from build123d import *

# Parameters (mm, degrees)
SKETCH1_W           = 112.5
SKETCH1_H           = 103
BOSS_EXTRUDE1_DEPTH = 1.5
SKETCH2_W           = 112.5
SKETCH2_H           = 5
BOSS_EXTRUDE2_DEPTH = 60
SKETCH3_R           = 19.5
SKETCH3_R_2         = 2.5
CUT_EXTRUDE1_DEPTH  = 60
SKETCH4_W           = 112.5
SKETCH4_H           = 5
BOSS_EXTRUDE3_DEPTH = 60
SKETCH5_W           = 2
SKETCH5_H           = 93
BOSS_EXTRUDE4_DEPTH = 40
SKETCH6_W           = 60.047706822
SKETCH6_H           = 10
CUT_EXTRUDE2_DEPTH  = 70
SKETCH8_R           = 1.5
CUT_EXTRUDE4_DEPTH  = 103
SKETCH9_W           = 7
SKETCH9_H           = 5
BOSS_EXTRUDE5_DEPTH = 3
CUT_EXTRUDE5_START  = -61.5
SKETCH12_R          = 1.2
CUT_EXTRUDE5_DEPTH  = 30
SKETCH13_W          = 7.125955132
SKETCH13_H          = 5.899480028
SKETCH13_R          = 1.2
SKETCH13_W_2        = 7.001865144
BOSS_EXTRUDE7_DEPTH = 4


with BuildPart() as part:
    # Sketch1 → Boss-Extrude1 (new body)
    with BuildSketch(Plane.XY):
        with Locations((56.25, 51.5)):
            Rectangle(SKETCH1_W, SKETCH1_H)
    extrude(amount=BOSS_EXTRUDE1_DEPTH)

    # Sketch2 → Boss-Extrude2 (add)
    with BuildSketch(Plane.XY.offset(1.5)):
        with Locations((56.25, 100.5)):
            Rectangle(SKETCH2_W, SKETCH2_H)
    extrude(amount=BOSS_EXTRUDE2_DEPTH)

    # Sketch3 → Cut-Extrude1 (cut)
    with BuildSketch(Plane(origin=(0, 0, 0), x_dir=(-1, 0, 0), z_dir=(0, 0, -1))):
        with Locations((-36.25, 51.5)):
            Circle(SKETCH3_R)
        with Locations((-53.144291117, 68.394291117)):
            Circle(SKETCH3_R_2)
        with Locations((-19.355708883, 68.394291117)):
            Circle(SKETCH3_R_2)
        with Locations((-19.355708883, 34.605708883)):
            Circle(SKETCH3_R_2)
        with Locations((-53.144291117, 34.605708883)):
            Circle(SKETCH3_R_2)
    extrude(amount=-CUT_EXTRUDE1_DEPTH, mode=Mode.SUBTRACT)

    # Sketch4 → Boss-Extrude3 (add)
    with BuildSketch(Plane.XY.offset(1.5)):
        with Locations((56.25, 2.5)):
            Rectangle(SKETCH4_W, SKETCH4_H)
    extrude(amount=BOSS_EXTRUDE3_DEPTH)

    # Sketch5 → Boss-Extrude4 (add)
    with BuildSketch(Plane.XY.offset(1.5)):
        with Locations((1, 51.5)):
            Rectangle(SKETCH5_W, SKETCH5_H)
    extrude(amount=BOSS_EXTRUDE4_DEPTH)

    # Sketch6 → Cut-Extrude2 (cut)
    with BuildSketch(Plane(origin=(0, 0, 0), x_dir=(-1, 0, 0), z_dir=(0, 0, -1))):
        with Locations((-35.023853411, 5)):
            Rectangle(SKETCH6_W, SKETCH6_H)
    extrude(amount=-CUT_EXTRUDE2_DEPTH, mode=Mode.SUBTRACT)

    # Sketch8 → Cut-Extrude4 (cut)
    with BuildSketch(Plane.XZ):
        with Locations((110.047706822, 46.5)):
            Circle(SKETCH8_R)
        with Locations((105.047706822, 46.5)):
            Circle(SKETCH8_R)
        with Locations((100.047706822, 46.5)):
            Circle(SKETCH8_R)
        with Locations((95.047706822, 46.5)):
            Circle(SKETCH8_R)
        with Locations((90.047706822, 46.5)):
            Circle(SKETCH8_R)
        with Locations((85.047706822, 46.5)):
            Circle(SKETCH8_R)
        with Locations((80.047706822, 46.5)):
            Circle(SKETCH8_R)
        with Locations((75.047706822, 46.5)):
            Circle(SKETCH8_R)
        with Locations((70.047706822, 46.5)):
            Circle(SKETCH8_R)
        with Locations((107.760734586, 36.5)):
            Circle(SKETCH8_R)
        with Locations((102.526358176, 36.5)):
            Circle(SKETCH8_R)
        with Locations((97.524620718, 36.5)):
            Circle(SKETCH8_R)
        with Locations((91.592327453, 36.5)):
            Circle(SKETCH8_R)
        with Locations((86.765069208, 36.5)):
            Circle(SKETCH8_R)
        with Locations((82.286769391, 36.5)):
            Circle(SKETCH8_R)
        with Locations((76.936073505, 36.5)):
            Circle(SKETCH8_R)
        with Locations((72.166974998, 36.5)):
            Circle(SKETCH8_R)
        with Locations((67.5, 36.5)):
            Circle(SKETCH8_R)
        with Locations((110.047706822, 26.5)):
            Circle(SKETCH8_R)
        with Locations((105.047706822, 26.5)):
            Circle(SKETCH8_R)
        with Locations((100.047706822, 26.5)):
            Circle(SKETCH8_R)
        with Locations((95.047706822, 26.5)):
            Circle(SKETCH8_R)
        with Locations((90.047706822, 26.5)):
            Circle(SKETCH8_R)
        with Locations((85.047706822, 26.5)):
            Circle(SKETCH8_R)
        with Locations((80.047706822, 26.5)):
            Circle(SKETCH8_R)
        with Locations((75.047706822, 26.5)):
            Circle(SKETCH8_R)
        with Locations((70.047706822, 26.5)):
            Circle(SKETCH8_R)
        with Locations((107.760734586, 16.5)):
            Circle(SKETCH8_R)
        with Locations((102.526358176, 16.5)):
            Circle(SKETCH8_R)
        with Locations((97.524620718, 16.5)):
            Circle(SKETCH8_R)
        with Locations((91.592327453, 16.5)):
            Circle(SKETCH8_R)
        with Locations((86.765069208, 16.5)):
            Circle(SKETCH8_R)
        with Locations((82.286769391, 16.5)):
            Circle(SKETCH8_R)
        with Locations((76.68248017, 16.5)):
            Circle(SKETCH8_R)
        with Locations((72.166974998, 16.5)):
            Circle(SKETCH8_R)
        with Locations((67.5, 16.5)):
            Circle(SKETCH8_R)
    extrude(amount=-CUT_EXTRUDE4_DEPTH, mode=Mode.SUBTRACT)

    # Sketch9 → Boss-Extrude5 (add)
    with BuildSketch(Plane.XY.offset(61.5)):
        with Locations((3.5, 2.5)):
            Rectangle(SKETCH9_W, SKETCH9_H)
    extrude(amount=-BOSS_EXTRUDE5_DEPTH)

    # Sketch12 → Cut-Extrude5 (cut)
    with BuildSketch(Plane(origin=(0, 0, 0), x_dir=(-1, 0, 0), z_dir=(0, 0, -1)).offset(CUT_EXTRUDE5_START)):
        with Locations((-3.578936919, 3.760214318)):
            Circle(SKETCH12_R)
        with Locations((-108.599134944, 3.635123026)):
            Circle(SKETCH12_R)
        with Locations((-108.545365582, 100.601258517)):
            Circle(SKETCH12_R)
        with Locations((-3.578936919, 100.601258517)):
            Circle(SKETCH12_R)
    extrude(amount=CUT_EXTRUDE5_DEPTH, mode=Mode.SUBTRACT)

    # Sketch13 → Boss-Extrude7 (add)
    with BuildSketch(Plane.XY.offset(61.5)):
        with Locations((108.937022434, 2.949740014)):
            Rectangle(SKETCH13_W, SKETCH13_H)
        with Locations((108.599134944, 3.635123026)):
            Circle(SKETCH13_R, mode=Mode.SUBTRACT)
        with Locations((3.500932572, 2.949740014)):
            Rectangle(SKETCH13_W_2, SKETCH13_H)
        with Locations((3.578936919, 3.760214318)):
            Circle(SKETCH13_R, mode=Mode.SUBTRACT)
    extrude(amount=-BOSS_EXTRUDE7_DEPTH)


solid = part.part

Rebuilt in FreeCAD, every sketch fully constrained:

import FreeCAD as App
import Part
import Sketcher
from FreeCAD import Vector


def add_polygon(sketch, points):
    """Adds a closed chain of lines whose ends are joined by coincident constraints."""
    first, n = sketch.GeometryCount, len(points)
    for a, b in zip(points, points[1:] + points[:1]):
        sketch.addGeometry(Part.LineSegment(App.Vector(*a, 0), App.Vector(*b, 0)), False)
    for i in range(n):
        sketch.addConstraint(Sketcher.Constraint("Coincident", first + i, 2, first + (i + 1) % n, 1))

doc = App.newDocument("Part")
params = doc.addObject("Spreadsheet::Sheet", "Params")
for row, (alias, value) in enumerate([
    ("sketch1_height", "103 mm"),
    ("sketch1_width", "112.5 mm"),
    ("pad1_length", "1.5 mm"),
    ("sketch2_height", "5 mm"),
    ("sketch2_width", "112.5 mm"),
    ("pad2_length", "60 mm"),
    ("sketch3_diameter", "39 mm"),
    ("sketch3_diameter2", "5 mm"),
    ("pocket1_length", "60 mm"),
    ("sketch4_height", "5 mm"),
    ("sketch4_width", "112.5 mm"),
    ("pad3_length", "60 mm"),
    ("sketch5_width", "2 mm"),
    ("sketch5_height", "93 mm"),
    ("pad4_length", "40 mm"),
    ("sketch6_height", "10 mm"),
    ("pocket2_length", "70 mm"),
    ("sketch7_diameter", "3 mm"),
    ("pocket3_length", "103 mm"),
    ("sketch8_width", "7 mm"),
    ("sketch8_height", "5 mm"),
    ("pad5_length", "3 mm"),
    ("sketch9_diameter", "2.4 mm"),
    ("pocket4_length", "30 mm"),
    ("sketch10_diameter", "2.4 mm"),
    ("pad6_length", "4 mm"),
], start=1):
    params.set(f"A{row}", alias)
    params.set(f"B{row}", "=" + value)
    params.setAlias(f"B{row}", alias)

body = doc.addObject("PartDesign::Body", "Body")

sketch1 = body.newObject("Sketcher::SketchObject", "Sketch")
sketch1.AttachmentSupport = (doc.getObject("XY_Plane"), [""])
sketch1.MapMode = "FlatFace"
add_polygon(sketch1, [(0, 103), (0, 0), (112, 0), (112, 103)])
sketch1.addConstraint(Sketcher.Constraint("Vertical", 0))
sketch1.addConstraint(Sketcher.Constraint("Horizontal", 1))
sketch1.addConstraint(Sketcher.Constraint("Vertical", 2))
sketch1.addConstraint(Sketcher.Constraint("Horizontal", 3))
sketch1.addConstraint(Sketcher.Constraint("Coincident", 0, 2, -1, 1))
sketch1.addConstraint(Sketcher.Constraint("DistanceY", 0, 2, 0, 1, 103.0))
sketch1.addConstraint(Sketcher.Constraint("DistanceX", 1, 1, 1, 2, 112.5))
sketch1.setExpression("Constraints[9]", "Params.sketch1_height")
sketch1.setExpression("Constraints[10]", "Params.sketch1_width")
pad1 = body.newObject("PartDesign::Pad", "Pad")
pad1.Profile = sketch1
pad1.setExpression("Length", "Params.pad1_length")

sketch2 = body.newObject("Sketcher::SketchObject", "Sketch001")
sketch2.AttachmentSupport = (doc.getObject("XY_Plane"), [""])
sketch2.MapMode = "FlatFace"
sketch2.AttachmentOffset = App.Placement(Vector(0, 0, 1.5), App.Rotation())
add_polygon(sketch2, [(0, 103), (0, 98), (112, 98), (112, 103)])
sketch2.addConstraint(Sketcher.Constraint("Vertical", 0))
sketch2.addConstraint(Sketcher.Constraint("Horizontal", 1))
sketch2.addConstraint(Sketcher.Constraint("Vertical", 2))
sketch2.addConstraint(Sketcher.Constraint("Horizontal", 3))
sketch2.addConstraint(Sketcher.Constraint("PointOnObject", 0, 2, -2))
sketch2.addConstraint(Sketcher.Constraint("DistanceY", 0, 2, 0, 1, 5.0))
sketch2.addConstraint(Sketcher.Constraint("DistanceX", 1, 1, 1, 2, 112.5))
sketch2.addConstraint(Sketcher.Constraint("DistanceY", -1, 1, 0, 2, 98.0))
sketch2.setExpression("Constraints[9]", "Params.sketch2_height")
sketch2.setExpression("Constraints[10]", "Params.sketch2_width")
pad2 = body.newObject("PartDesign::Pad", "Pad001")
pad2.Profile = sketch2
pad2.setExpression("Length", "Params.pad2_length")

sketch3 = body.newObject("Sketcher::SketchObject", "Sketch002")
sketch3.AttachmentSupport = (doc.getObject("XY_Plane"), [""])
sketch3.MapMode = "FlatFace"
sketch3.addGeometry(Part.Circle(Vector(36.2, 51.5, 0), Vector(0, 0, 1), 19.5), False)
sketch3.addGeometry(Part.Circle(Vector(53.1, 68.4, 0), Vector(0, 0, 1), 2.5), False)
sketch3.addGeometry(Part.Circle(Vector(19.4, 68.4, 0), Vector(0, 0, 1), 2.5), False)
sketch3.addGeometry(Part.Circle(Vector(19.4, 34.6, 0), Vector(0, 0, 1), 2.5), False)
sketch3.addGeometry(Part.Circle(Vector(53.1, 34.6, 0), Vector(0, 0, 1), 2.5), False)
sketch3.addConstraint(Sketcher.Constraint("Equal", 1, 2))
sketch3.addConstraint(Sketcher.Constraint("Equal", 2, 3))
sketch3.addConstraint(Sketcher.Constraint("Equal", 3, 4))
sketch3.addConstraint(Sketcher.Constraint("Horizontal", 1, 3, 2, 3))
sketch3.addConstraint(Sketcher.Constraint("Horizontal", 3, 3, 4, 3))
sketch3.addConstraint(Sketcher.Constraint("Vertical", 2, 3, 3, 3))
sketch3.addConstraint(Sketcher.Constraint("Vertical", 1, 3, 4, 3))
sketch3.addConstraint(Sketcher.Constraint("Diameter", 0, 39.0))
sketch3.addConstraint(Sketcher.Constraint("Diameter", 1, 5.0))
sketch3.addConstraint(Sketcher.Constraint("DistanceY", -1, 1, 0, 3, 51.5))
sketch3.addConstraint(Sketcher.Constraint("DistanceX", -1, 1, 0, 3, 36.25))
sketch3.addConstraint(Sketcher.Constraint("DistanceX", -1, 1, 1, 3, 53.144291))
sketch3.addConstraint(Sketcher.Constraint("DistanceY", -1, 1, 1, 3, 68.394291))
sketch3.addConstraint(Sketcher.Constraint("DistanceX", -1, 1, 2, 3, 19.355709))
sketch3.addConstraint(Sketcher.Constraint("DistanceY", -1, 1, 3, 3, 34.605709))
sketch3.setExpression("Constraints[7]", "Params.sketch3_diameter")
sketch3.setExpression("Constraints[8]", "Params.sketch3_diameter2")
pocket1 = body.newObject("PartDesign::Pocket", "Pocket")
pocket1.Profile = sketch3
pocket1.setExpression("Length", "Params.pocket1_length")
pocket1.Reversed = True

sketch4 = body.newObject("Sketcher::SketchObject", "Sketch003")
sketch4.AttachmentSupport = (doc.getObject("XY_Plane"), [""])
sketch4.MapMode = "FlatFace"
sketch4.AttachmentOffset = App.Placement(Vector(0, 0, 1.5), App.Rotation())
add_polygon(sketch4, [(0, 5), (0, 0), (112, 0), (112, 5)])
sketch4.addConstraint(Sketcher.Constraint("Vertical", 0))
sketch4.addConstraint(Sketcher.Constraint("Horizontal", 1))
sketch4.addConstraint(Sketcher.Constraint("Vertical", 2))
sketch4.addConstraint(Sketcher.Constraint("Horizontal", 3))
sketch4.addConstraint(Sketcher.Constraint("Coincident", 0, 2, -1, 1))
sketch4.addConstraint(Sketcher.Constraint("DistanceY", 0, 2, 0, 1, 5.0))
sketch4.addConstraint(Sketcher.Constraint("DistanceX", 1, 1, 1, 2, 112.5))
sketch4.setExpression("Constraints[9]", "Params.sketch4_height")
sketch4.setExpression("Constraints[10]", "Params.sketch4_width")
pad3 = body.newObject("PartDesign::Pad", "Pad002")
pad3.Profile = sketch4
pad3.setExpression("Length", "Params.pad3_length")

sketch5 = body.newObject("Sketcher::SketchObject", "Sketch004")
sketch5.AttachmentSupport = (doc.getObject("XY_Plane"), [""])
sketch5.MapMode = "FlatFace"
sketch5.AttachmentOffset = App.Placement(Vector(0, 0, 1.5), App.Rotation())
add_polygon(sketch5, [(0, 98), (0, 5), (2, 5), (2, 98)])
sketch5.addConstraint(Sketcher.Constraint("Vertical", 0))
sketch5.addConstraint(Sketcher.Constraint("Horizontal", 1))
sketch5.addConstraint(Sketcher.Constraint("Vertical", 2))
sketch5.addConstraint(Sketcher.Constraint("Horizontal", 3))
sketch5.addConstraint(Sketcher.Constraint("PointOnObject", 0, 2, -2))
sketch5.addConstraint(Sketcher.Constraint("DistanceX", 1, 1, 1, 2, 2.0))
sketch5.addConstraint(Sketcher.Constraint("DistanceY", 0, 2, 0, 1, 93.0))
sketch5.addConstraint(Sketcher.Constraint("DistanceY", -1, 1, 0, 2, 5.0))
sketch5.setExpression("Constraints[9]", "Params.sketch5_width")
sketch5.setExpression("Constraints[10]", "Params.sketch5_height")
pad4 = body.newObject("PartDesign::Pad", "Pad003")
pad4.Profile = sketch5
pad4.setExpression("Length", "Params.pad4_length")

sketch6 = body.newObject("Sketcher::SketchObject", "Sketch005")
sketch6.AttachmentSupport = (doc.getObject("XY_Plane"), [""])
sketch6.MapMode = "FlatFace"
add_polygon(sketch6, [(65, 10), (65, 0), (5, 0), (5, 10)])
sketch6.addConstraint(Sketcher.Constraint("Vertical", 0))
sketch6.addConstraint(Sketcher.Constraint("Horizontal", 1))
sketch6.addConstraint(Sketcher.Constraint("Vertical", 2))
sketch6.addConstraint(Sketcher.Constraint("Horizontal", 3))
sketch6.addConstraint(Sketcher.Constraint("PointOnObject", 0, 2, -1))
sketch6.addConstraint(Sketcher.Constraint("DistanceY", 0, 2, 0, 1, 10.0))
sketch6.addConstraint(Sketcher.Constraint("DistanceX", -1, 1, 1, 2, 5.0))
sketch6.addConstraint(Sketcher.Constraint("DistanceX", 1, 2, 1, 1, 60.047707))
sketch6.setExpression("Constraints[9]", "Params.sketch6_height")
pocket2 = body.newObject("PartDesign::Pocket", "Pocket001")
pocket2.Profile = sketch6
pocket2.setExpression("Length", "Params.pocket2_length")
pocket2.Reversed = True

sketch7 = body.newObject("Sketcher::SketchObject", "Sketch006")
sketch7.AttachmentSupport = (doc.getObject("XZ_Plane"), [""])
sketch7.MapMode = "FlatFace"
sketch7.addGeometry(Part.Circle(Vector(110, 46.5, 0), Vector(0, 0, 1), 1.5), False)
sketch7.addGeometry(Part.Circle(Vector(105, 46.5, 0), Vector(0, 0, 1), 1.5), False)
sketch7.addGeometry(Part.Circle(Vector(100, 46.5, 0), Vector(0, 0, 1), 1.5), False)
sketch7.addGeometry(Part.Circle(Vector(95, 46.5, 0), Vector(0, 0, 1), 1.5), False)
sketch7.addGeometry(Part.Circle(Vector(90, 46.5, 0), Vector(0, 0, 1), 1.5), False)
sketch7.addGeometry(Part.Circle(Vector(85, 46.5, 0), Vector(0, 0, 1), 1.5), False)
sketch7.addGeometry(Part.Circle(Vector(80, 46.5, 0), Vector(0, 0, 1), 1.5), False)
sketch7.addGeometry(Part.Circle(Vector(75, 46.5, 0), Vector(0, 0, 1), 1.5), False)
sketch7.addGeometry(Part.Circle(Vector(70, 46.5, 0), Vector(0, 0, 1), 1.5), False)
sketch7.addGeometry(Part.Circle(Vector(107.8, 36.5, 0), Vector(0, 0, 1), 1.5), False)
sketch7.addGeometry(Part.Circle(Vector(102.5, 36.5, 0), Vector(0, 0, 1), 1.5), False)
sketch7.addGeometry(Part.Circle(Vector(97.5, 36.5, 0), Vector(0, 0, 1), 1.5), False)
sketch7.addGeometry(Part.Circle(Vector(91.6, 36.5, 0), Vector(0, 0, 1), 1.5), False)
sketch7.addGeometry(Part.Circle(Vector(86.8, 36.5, 0), Vector(0, 0, 1), 1.5), False)
sketch7.addGeometry(Part.Circle(Vector(82.3, 36.5, 0), Vector(0, 0, 1), 1.5), False)
sketch7.addGeometry(Part.Circle(Vector(76.9, 36.5, 0), Vector(0, 0, 1), 1.5), False)
sketch7.addGeometry(Part.Circle(Vector(72.2, 36.5, 0), Vector(0, 0, 1), 1.5), False)
sketch7.addGeometry(Part.Circle(Vector(67.5, 36.5, 0), Vector(0, 0, 1), 1.5), False)
sketch7.addGeometry(Part.Circle(Vector(110, 26.5, 0), Vector(0, 0, 1), 1.5), False)
sketch7.addGeometry(Part.Circle(Vector(105, 26.5, 0), Vector(0, 0, 1), 1.5), False)
sketch7.addGeometry(Part.Circle(Vector(100, 26.5, 0), Vector(0, 0, 1), 1.5), False)
sketch7.addGeometry(Part.Circle(Vector(95, 26.5, 0), Vector(0, 0, 1), 1.5), False)
sketch7.addGeometry(Part.Circle(Vector(90, 26.5, 0), Vector(0, 0, 1), 1.5), False)
sketch7.addGeometry(Part.Circle(Vector(85, 26.5, 0), Vector(0, 0, 1), 1.5), False)
sketch7.addGeometry(Part.Circle(Vector(80, 26.5, 0), Vector(0, 0, 1), 1.5), False)
sketch7.addGeometry(Part.Circle(Vector(75, 26.5, 0), Vector(0, 0, 1), 1.5), False)
sketch7.addGeometry(Part.Circle(Vector(70, 26.5, 0), Vector(0, 0, 1), 1.5), False)
sketch7.addGeometry(Part.Circle(Vector(107.8, 16.5, 0), Vector(0, 0, 1), 1.5), False)
sketch7.addGeometry(Part.Circle(Vector(102.5, 16.5, 0), Vector(0, 0, 1), 1.5), False)
sketch7.addGeometry(Part.Circle(Vector(97.5, 16.5, 0), Vector(0, 0, 1), 1.5), False)
sketch7.addGeometry(Part.Circle(Vector(91.6, 16.5, 0), Vector(0, 0, 1), 1.5), False)
sketch7.addGeometry(Part.Circle(Vector(86.8, 16.5, 0), Vector(0, 0, 1), 1.5), False)
sketch7.addGeometry(Part.Circle(Vector(82.3, 16.5, 0), Vector(0, 0, 1), 1.5), False)
sketch7.addGeometry(Part.Circle(Vector(76.7, 16.5, 0), Vector(0, 0, 1), 1.5), False)
sketch7.addGeometry(Part.Circle(Vector(72.2, 16.5, 0), Vector(0, 0, 1), 1.5), False)
sketch7.addGeometry(Part.Circle(Vector(67.5, 16.5, 0), Vector(0, 0, 1), 1.5), False)
sketch7.addConstraint(Sketcher.Constraint("Equal", 0, 1))
sketch7.addConstraint(Sketcher.Constraint("Equal", 1, 2))
sketch7.addConstraint(Sketcher.Constraint("Equal", 2, 3))
sketch7.addConstraint(Sketcher.Constraint("Equal", 3, 4))
sketch7.addConstraint(Sketcher.Constraint("Equal", 4, 5))
sketch7.addConstraint(Sketcher.Constraint("Equal", 5, 6))
sketch7.addConstraint(Sketcher.Constraint("Equal", 6, 7))
sketch7.addConstraint(Sketcher.Constraint("Equal", 7, 8))
sketch7.addConstraint(Sketcher.Constraint("Equal", 8, 9))
sketch7.addConstraint(Sketcher.Constraint("Equal", 9, 10))
sketch7.addConstraint(Sketcher.Constraint("Equal", 10, 11))
sketch7.addConstraint(Sketcher.Constraint("Equal", 11, 12))
sketch7.addConstraint(Sketcher.Constraint("Equal", 12, 13))
sketch7.addConstraint(Sketcher.Constraint("Equal", 13, 14))
sketch7.addConstraint(Sketcher.Constraint("Equal", 14, 15))
sketch7.addConstraint(Sketcher.Constraint("Equal", 15, 16))
sketch7.addConstraint(Sketcher.Constraint("Equal", 16, 17))
sketch7.addConstraint(Sketcher.Constraint("Equal", 17, 18))
sketch7.addConstraint(Sketcher.Constraint("Equal", 18, 19))
sketch7.addConstraint(Sketcher.Constraint("Equal", 19, 20))
sketch7.addConstraint(Sketcher.Constraint("Equal", 20, 21))
sketch7.addConstraint(Sketcher.Constraint("Equal", 21, 22))
sketch7.addConstraint(Sketcher.Constraint("Equal", 22, 23))
sketch7.addConstraint(Sketcher.Constraint("Equal", 23, 24))
sketch7.addConstraint(Sketcher.Constraint("Equal", 24, 25))
sketch7.addConstraint(Sketcher.Constraint("Equal", 25, 26))
sketch7.addConstraint(Sketcher.Constraint("Equal", 26, 27))
sketch7.addConstraint(Sketcher.Constraint("Equal", 27, 28))
sketch7.addConstraint(Sketcher.Constraint("Equal", 28, 29))
sketch7.addConstraint(Sketcher.Constraint("Equal", 29, 30))
sketch7.addConstraint(Sketcher.Constraint("Equal", 30, 31))
sketch7.addConstraint(Sketcher.Constraint("Equal", 31, 32))
sketch7.addConstraint(Sketcher.Constraint("Equal", 32, 33))
sketch7.addConstraint(Sketcher.Constraint("Equal", 33, 34))
sketch7.addConstraint(Sketcher.Constraint("Equal", 34, 35))
sketch7.addConstraint(Sketcher.Constraint("Horizontal", 0, 3, 1, 3))
sketch7.addConstraint(Sketcher.Constraint("Horizontal", 1, 3, 2, 3))
sketch7.addConstraint(Sketcher.Constraint("Horizontal", 2, 3, 3, 3))
sketch7.addConstraint(Sketcher.Constraint("Horizontal", 3, 3, 4, 3))
sketch7.addConstraint(Sketcher.Constraint("Horizontal", 4, 3, 5, 3))
sketch7.addConstraint(Sketcher.Constraint("Horizontal", 5, 3, 6, 3))
sketch7.addConstraint(Sketcher.Constraint("Horizontal", 6, 3, 7, 3))
sketch7.addConstraint(Sketcher.Constraint("Horizontal", 7, 3, 8, 3))
sketch7.addConstraint(Sketcher.Constraint("Horizontal", 9, 3, 10, 3))
sketch7.addConstraint(Sketcher.Constraint("Horizontal", 10, 3, 11, 3))
sketch7.addConstraint(Sketcher.Constraint("Horizontal", 11, 3, 12, 3))
sketch7.addConstraint(Sketcher.Constraint("Horizontal", 12, 3, 13, 3))
sketch7.addConstraint(Sketcher.Constraint("Horizontal", 13, 3, 14, 3))
sketch7.addConstraint(Sketcher.Constraint("Horizontal", 14, 3, 15, 3))
sketch7.addConstraint(Sketcher.Constraint("Horizontal", 15, 3, 16, 3))
sketch7.addConstraint(Sketcher.Constraint("Horizontal", 16, 3, 17, 3))
sketch7.addConstraint(Sketcher.Constraint("Horizontal", 18, 3, 19, 3))
sketch7.addConstraint(Sketcher.Constraint("Horizontal", 19, 3, 20, 3))
sketch7.addConstraint(Sketcher.Constraint("Horizontal", 20, 3, 21, 3))
sketch7.addConstraint(Sketcher.Constraint("Horizontal", 21, 3, 22, 3))
sketch7.addConstraint(Sketcher.Constraint("Horizontal", 22, 3, 23, 3))
sketch7.addConstraint(Sketcher.Constraint("Horizontal", 23, 3, 24, 3))
sketch7.addConstraint(Sketcher.Constraint("Horizontal", 24, 3, 25, 3))
sketch7.addConstraint(Sketcher.Constraint("Horizontal", 25, 3, 26, 3))
sketch7.addConstraint(Sketcher.Constraint("Horizontal", 27, 3, 28, 3))
sketch7.addConstraint(Sketcher.Constraint("Horizontal", 28, 3, 29, 3))
sketch7.addConstraint(Sketcher.Constraint("Horizontal", 29, 3, 30, 3))
sketch7.addConstraint(Sketcher.Constraint("Horizontal", 30, 3, 31, 3))
sketch7.addConstraint(Sketcher.Constraint("Horizontal", 31, 3, 32, 3))
sketch7.addConstraint(Sketcher.Constraint("Horizontal", 32, 3, 33, 3))
sketch7.addConstraint(Sketcher.Constraint("Horizontal", 33, 3, 34, 3))
sketch7.addConstraint(Sketcher.Constraint("Horizontal", 34, 3, 35, 3))
sketch7.addConstraint(Sketcher.Constraint("Vertical", 0, 3, 18, 3))
sketch7.addConstraint(Sketcher.Constraint("Vertical", 1, 3, 19, 3))
sketch7.addConstraint(Sketcher.Constraint("Vertical", 2, 3, 20, 3))
sketch7.addConstraint(Sketcher.Constraint("Vertical", 3, 3, 21, 3))
sketch7.addConstraint(Sketcher.Constraint("Vertical", 4, 3, 22, 3))
sketch7.addConstraint(Sketcher.Constraint("Vertical", 5, 3, 23, 3))
sketch7.addConstraint(Sketcher.Constraint("Vertical", 6, 3, 24, 3))
sketch7.addConstraint(Sketcher.Constraint("Vertical", 7, 3, 25, 3))
sketch7.addConstraint(Sketcher.Constraint("Vertical", 8, 3, 26, 3))
sketch7.addConstraint(Sketcher.Constraint("Vertical", 9, 3, 27, 3))
sketch7.addConstraint(Sketcher.Constraint("Vertical", 10, 3, 28, 3))
sketch7.addConstraint(Sketcher.Constraint("Vertical", 11, 3, 29, 3))
sketch7.addConstraint(Sketcher.Constraint("Vertical", 12, 3, 30, 3))
sketch7.addConstraint(Sketcher.Constraint("Vertical", 13, 3, 31, 3))
sketch7.addConstraint(Sketcher.Constraint("Vertical", 14, 3, 32, 3))
sketch7.addConstraint(Sketcher.Constraint("Vertical", 16, 3, 34, 3))
sketch7.addConstraint(Sketcher.Constraint("Vertical", 17, 3, 35, 3))
sketch7.addConstraint(Sketcher.Constraint("Diameter", 0, 3.0))
sketch7.addConstraint(Sketcher.Constraint("DistanceX", 1, 3, 0, 3, 5.0))
sketch7.addConstraint(Sketcher.Constraint("DistanceX", 2, 3, 1, 3, 5.0))
sketch7.addConstraint(Sketcher.Constraint("DistanceX", 3, 3, 2, 3, 5.0))
sketch7.addConstraint(Sketcher.Constraint("DistanceX", 4, 3, 3, 3, 5.0))
sketch7.addConstraint(Sketcher.Constraint("DistanceX", 5, 3, 4, 3, 5.0))
sketch7.addConstraint(Sketcher.Constraint("DistanceX", 6, 3, 5, 3, 5.0))
sketch7.addConstraint(Sketcher.Constraint("DistanceX", 7, 3, 6, 3, 5.0))
sketch7.addConstraint(Sketcher.Constraint("DistanceX", 8, 3, 7, 3, 5.0))
sketch7.addConstraint(Sketcher.Constraint("DistanceY", 9, 3, 0, 3, 10.0))
sketch7.addConstraint(Sketcher.Constraint("DistanceY", 18, 3, 9, 3, 10.0))
sketch7.addConstraint(Sketcher.Constraint("DistanceY", 27, 3, 18, 3, 10.0))
sketch7.addConstraint(Sketcher.Constraint("DistanceY", -1, 1, 0, 3, 46.5))
sketch7.addConstraint(Sketcher.Constraint("DistanceX", -1, 1, 17, 3, 67.5))
sketch7.addConstraint(Sketcher.Constraint("DistanceX", 14, 3, 13, 3, 4.4783))
sketch7.addConstraint(Sketcher.Constraint("DistanceX", 16, 3, 15, 3, 4.769099))
sketch7.addConstraint(Sketcher.Constraint("DistanceX", -1, 1, 10, 3, 102.526358))
sketch7.addConstraint(Sketcher.Constraint("DistanceX", -1, 1, 11, 3, 97.524621))
sketch7.addConstraint(Sketcher.Constraint("DistanceX", -1, 1, 13, 3, 86.765069))
sketch7.addConstraint(Sketcher.Constraint("DistanceX", -1, 1, 33, 3, 76.68248))
sketch7.addConstraint(Sketcher.Constraint("DistanceX", 2, 3, 10, 3, 2.478651))
sketch7.addConstraint(Sketcher.Constraint("DistanceX", 4, 3, 12, 3, 1.544621))
sketch7.addConstraint(Sketcher.Constraint("DistanceX", 8, 3, 16, 3, 2.119268))
sketch7.addConstraint(Sketcher.Constraint("DistanceX", -1, 1, 9, 3, 107.760735))
sketch7.setExpression("Constraints[84]", "Params.sketch7_diameter")
pocket3 = body.newObject("PartDesign::Pocket", "Pocket002")
pocket3.Profile = sketch7
pocket3.setExpression("Length", "Params.pocket3_length")

sketch8 = body.newObject("Sketcher::SketchObject", "Sketch007")
sketch8.AttachmentSupport = (doc.getObject("XY_Plane"), [""])
sketch8.MapMode = "FlatFace"
sketch8.AttachmentOffset = App.Placement(Vector(0, 0, 61.5), App.Rotation())
add_polygon(sketch8, [(0, 5), (0, 0), (7, 0), (7, 5)])
sketch8.addConstraint(Sketcher.Constraint("Vertical", 0))
sketch8.addConstraint(Sketcher.Constraint("Horizontal", 1))
sketch8.addConstraint(Sketcher.Constraint("Vertical", 2))
sketch8.addConstraint(Sketcher.Constraint("Horizontal", 3))
sketch8.addConstraint(Sketcher.Constraint("Coincident", 0, 2, -1, 1))
sketch8.addConstraint(Sketcher.Constraint("DistanceX", 1, 1, 1, 2, 7.0))
sketch8.addConstraint(Sketcher.Constraint("DistanceY", 0, 2, 0, 1, 5.0))
sketch8.setExpression("Constraints[9]", "Params.sketch8_width")
sketch8.setExpression("Constraints[10]", "Params.sketch8_height")
pad5 = body.newObject("PartDesign::Pad", "Pad004")
pad5.Profile = sketch8
pad5.setExpression("Length", "Params.pad5_length")
pad5.Reversed = True

sketch9 = body.newObject("Sketcher::SketchObject", "Sketch008")
sketch9.AttachmentSupport = (doc.getObject("XY_Plane"), [""])
sketch9.MapMode = "FlatFace"
sketch9.AttachmentOffset = App.Placement(Vector(0, 0, 61.5), App.Rotation())
sketch9.addGeometry(Part.Circle(Vector(3.6, 3.8, 0), Vector(0, 0, 1), 1.2), False)
sketch9.addGeometry(Part.Circle(Vector(108.6, 3.6, 0), Vector(0, 0, 1), 1.2), False)
sketch9.addGeometry(Part.Circle(Vector(108.5, 100.6, 0), Vector(0, 0, 1), 1.2), False)
sketch9.addGeometry(Part.Circle(Vector(3.6, 100.6, 0), Vector(0, 0, 1), 1.2), False)
sketch9.addConstraint(Sketcher.Constraint("Equal", 0, 1))
sketch9.addConstraint(Sketcher.Constraint("Equal", 1, 2))
sketch9.addConstraint(Sketcher.Constraint("Equal", 2, 3))
sketch9.addConstraint(Sketcher.Constraint("Horizontal", 2, 3, 3, 3))
sketch9.addConstraint(Sketcher.Constraint("Vertical", 0, 3, 3, 3))
sketch9.addConstraint(Sketcher.Constraint("Diameter", 0, 2.4))
sketch9.addConstraint(Sketcher.Constraint("DistanceX", 0, 3, 1, 3, 105.020198))
sketch9.addConstraint(Sketcher.Constraint("DistanceY", -1, 1, 2, 3, 100.601259))
sketch9.addConstraint(Sketcher.Constraint("DistanceY", 1, 3, 0, 3, 0.125091))
sketch9.addConstraint(Sketcher.Constraint("DistanceX", 2, 3, 1, 3, 0.053769))
sketch9.addConstraint(Sketcher.Constraint("DistanceX", -1, 1, 0, 3, 3.578937))
sketch9.addConstraint(Sketcher.Constraint("DistanceY", -1, 1, 0, 3, 3.760214))
sketch9.setExpression("Constraints[5]", "Params.sketch9_diameter")
pocket4 = body.newObject("PartDesign::Pocket", "Pocket003")
pocket4.Profile = sketch9
pocket4.setExpression("Length", "Params.pocket4_length")

sketch10 = body.newObject("Sketcher::SketchObject", "Sketch009")
sketch10.AttachmentSupport = (doc.getObject("XY_Plane"), [""])
sketch10.MapMode = "FlatFace"
sketch10.AttachmentOffset = App.Placement(Vector(0, 0, 61.5), App.Rotation())
add_polygon(sketch10, [(105.4, 5.9), (105.4, 0), (112.5, 0), (112.5, 5.9)])
sketch10.addGeometry(Part.Circle(Vector(108.6, 3.6, 0), Vector(0, 0, 1), 1.2), False)
add_polygon(sketch10, [(0, 5.9), (0, 0), (7, 0), (7, 5.9)])
sketch10.addGeometry(Part.Circle(Vector(3.6, 3.8, 0), Vector(0, 0, 1), 1.2), False)
sketch10.addConstraint(Sketcher.Constraint("Vertical", 0))
sketch10.addConstraint(Sketcher.Constraint("Horizontal", 1))
sketch10.addConstraint(Sketcher.Constraint("Vertical", 2))
sketch10.addConstraint(Sketcher.Constraint("Horizontal", 3))
sketch10.addConstraint(Sketcher.Constraint("Vertical", 5))
sketch10.addConstraint(Sketcher.Constraint("Horizontal", 6))
sketch10.addConstraint(Sketcher.Constraint("Vertical", 7))
sketch10.addConstraint(Sketcher.Constraint("Horizontal", 8))
sketch10.addConstraint(Sketcher.Constraint("Coincident", 5, 2, -1, 1))
sketch10.addConstraint(Sketcher.Constraint("Equal", 4, 9))
sketch10.addConstraint(Sketcher.Constraint("PointOnObject", 0, 2, -1))
sketch10.addConstraint(Sketcher.Constraint("Horizontal", 3, 2, 7, 2))
sketch10.addConstraint(Sketcher.Constraint("Diameter", 4, 2.4))
sketch10.addConstraint(Sketcher.Constraint("DistanceX", -1, 1, 1, 2, 112.5))
sketch10.addConstraint(Sketcher.Constraint("DistanceY", 0, 2, 0, 1, 5.89948))
sketch10.addConstraint(Sketcher.Constraint("DistanceX", 9, 3, 4, 3, 105.020198))
sketch10.addConstraint(Sketcher.Constraint("DistanceX", 1, 1, 1, 2, 7.125955))
sketch10.addConstraint(Sketcher.Constraint("DistanceX", 6, 1, 6, 2, 7.001865))
sketch10.addConstraint(Sketcher.Constraint("DistanceY", 4, 3, 9, 3, 0.125091))
sketch10.addConstraint(Sketcher.Constraint("DistanceX", 0, 2, 4, 3, 3.22509))
sketch10.addConstraint(Sketcher.Constraint("DistanceY", -1, 1, 4, 3, 3.635123))
sketch10.setExpression("Constraints[20]", "Params.sketch10_diameter")
pad6 = body.newObject("PartDesign::Pad", "Pad005")
pad6.Profile = sketch10
pad6.setExpression("Length", "Params.pad6_length")
pad6.Reversed = True

doc.recompute()
